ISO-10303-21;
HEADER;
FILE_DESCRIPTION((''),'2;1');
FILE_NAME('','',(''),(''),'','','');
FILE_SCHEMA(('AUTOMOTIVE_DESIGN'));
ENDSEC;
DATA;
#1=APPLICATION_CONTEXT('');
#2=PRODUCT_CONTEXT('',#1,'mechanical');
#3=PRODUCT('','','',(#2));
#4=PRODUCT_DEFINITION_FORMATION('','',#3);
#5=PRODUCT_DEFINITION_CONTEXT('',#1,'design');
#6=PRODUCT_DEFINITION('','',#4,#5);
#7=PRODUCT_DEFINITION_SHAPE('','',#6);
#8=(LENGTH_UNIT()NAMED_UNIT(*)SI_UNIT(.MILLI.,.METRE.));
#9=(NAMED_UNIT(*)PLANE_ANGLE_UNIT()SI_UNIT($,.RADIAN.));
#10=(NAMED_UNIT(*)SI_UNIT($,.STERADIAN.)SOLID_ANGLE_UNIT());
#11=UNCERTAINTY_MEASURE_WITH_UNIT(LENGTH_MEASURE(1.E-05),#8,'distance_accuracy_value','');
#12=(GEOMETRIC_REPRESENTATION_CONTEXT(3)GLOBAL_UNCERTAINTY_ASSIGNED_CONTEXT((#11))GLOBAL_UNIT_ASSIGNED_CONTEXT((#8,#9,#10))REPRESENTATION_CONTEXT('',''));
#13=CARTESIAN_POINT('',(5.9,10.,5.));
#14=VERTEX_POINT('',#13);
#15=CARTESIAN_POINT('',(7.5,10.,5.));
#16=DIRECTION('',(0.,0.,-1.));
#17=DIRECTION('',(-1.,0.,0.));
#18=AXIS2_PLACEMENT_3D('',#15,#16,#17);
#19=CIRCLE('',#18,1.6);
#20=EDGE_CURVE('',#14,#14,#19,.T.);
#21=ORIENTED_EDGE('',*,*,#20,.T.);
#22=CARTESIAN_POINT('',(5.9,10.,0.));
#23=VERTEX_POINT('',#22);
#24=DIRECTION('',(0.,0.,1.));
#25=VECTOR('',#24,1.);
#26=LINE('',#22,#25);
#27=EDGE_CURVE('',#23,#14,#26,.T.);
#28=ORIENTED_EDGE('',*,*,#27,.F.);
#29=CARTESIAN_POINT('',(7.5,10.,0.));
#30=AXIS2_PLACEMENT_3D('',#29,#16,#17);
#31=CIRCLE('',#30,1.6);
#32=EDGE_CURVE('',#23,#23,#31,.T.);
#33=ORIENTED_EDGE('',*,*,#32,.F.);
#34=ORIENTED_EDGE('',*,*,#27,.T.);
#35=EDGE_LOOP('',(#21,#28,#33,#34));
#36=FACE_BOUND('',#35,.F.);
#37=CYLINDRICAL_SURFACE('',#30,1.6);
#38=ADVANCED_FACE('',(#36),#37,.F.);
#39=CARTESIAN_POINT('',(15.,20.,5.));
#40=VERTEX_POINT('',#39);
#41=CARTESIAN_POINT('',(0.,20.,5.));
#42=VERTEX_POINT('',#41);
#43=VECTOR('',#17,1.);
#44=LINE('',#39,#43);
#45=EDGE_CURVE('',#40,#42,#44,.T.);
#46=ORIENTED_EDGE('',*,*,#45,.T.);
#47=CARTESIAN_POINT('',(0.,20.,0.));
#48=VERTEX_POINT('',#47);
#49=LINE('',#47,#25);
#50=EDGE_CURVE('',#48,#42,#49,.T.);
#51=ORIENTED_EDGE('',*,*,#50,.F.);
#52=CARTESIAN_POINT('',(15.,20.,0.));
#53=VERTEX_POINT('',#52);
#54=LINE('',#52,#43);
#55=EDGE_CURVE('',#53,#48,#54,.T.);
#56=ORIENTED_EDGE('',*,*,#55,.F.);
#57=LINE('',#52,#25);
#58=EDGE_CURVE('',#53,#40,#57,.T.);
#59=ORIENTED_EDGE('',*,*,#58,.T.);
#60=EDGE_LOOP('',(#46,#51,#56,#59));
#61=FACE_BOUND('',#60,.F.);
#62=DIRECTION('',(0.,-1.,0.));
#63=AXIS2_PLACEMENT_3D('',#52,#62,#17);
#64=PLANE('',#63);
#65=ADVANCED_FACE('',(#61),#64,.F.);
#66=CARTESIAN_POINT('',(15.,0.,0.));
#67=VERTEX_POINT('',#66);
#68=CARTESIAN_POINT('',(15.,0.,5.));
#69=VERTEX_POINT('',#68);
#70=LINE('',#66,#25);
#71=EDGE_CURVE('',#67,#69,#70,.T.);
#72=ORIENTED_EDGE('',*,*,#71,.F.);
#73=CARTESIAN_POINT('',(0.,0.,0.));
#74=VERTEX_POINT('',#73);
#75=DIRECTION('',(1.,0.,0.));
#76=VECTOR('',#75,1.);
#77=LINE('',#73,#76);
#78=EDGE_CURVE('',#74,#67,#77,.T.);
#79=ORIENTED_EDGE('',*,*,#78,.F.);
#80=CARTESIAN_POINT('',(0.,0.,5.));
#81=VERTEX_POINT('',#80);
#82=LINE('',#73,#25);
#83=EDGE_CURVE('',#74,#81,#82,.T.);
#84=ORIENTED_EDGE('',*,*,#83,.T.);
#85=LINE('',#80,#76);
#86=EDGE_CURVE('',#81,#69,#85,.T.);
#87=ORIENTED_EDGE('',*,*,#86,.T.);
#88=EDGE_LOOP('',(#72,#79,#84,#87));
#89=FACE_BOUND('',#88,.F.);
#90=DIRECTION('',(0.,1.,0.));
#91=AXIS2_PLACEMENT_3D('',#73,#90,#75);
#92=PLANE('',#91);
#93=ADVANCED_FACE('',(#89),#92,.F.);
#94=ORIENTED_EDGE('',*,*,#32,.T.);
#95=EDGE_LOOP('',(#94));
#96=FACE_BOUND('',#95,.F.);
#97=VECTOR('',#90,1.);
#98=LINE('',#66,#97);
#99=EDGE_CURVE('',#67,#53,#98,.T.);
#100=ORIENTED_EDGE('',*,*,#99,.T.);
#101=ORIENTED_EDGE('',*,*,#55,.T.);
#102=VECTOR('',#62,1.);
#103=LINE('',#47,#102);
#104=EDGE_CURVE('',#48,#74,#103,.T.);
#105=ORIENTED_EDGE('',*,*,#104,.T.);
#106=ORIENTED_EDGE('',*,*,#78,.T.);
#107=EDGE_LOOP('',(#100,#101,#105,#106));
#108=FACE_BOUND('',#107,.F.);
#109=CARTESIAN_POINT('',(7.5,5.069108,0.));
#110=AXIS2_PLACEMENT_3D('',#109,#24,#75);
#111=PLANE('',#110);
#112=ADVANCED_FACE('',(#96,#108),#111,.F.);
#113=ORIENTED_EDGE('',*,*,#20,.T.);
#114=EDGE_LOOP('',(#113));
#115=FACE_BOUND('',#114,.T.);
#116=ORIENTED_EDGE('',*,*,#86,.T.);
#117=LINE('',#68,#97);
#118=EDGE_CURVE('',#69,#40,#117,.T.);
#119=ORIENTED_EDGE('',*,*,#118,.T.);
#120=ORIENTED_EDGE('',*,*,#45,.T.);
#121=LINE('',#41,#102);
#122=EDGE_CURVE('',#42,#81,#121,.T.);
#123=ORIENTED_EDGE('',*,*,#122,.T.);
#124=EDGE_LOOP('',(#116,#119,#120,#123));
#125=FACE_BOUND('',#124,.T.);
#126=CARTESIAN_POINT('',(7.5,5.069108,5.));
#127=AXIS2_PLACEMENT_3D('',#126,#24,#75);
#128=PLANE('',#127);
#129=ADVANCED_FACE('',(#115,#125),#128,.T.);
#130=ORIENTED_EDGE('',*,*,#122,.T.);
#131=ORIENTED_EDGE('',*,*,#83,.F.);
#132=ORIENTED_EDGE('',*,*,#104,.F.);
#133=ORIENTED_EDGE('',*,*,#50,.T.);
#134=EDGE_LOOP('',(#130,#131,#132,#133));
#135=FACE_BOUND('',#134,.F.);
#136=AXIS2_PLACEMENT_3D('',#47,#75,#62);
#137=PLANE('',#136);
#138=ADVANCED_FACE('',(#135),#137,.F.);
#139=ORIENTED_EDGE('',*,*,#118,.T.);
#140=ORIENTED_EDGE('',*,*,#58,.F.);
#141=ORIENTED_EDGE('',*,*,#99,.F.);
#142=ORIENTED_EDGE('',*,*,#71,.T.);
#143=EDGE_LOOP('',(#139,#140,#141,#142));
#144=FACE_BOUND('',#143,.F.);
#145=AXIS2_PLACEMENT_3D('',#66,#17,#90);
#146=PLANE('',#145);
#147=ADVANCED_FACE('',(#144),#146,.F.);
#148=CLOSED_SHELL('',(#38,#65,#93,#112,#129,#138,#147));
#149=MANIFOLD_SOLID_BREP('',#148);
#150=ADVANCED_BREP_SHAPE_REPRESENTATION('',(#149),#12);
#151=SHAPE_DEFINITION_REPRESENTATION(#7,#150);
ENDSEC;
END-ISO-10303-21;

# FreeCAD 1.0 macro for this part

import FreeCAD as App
import Part
import Sketcher

V = App.Vector


def add_polygon(sketch, points):
    """Adds a closed chain of lines whose ends are joined by coincident constraints."""
    first, n = sketch.GeometryCount, len(points)
    for a, b in zip(points, points[1:] + points[:1]):
        sketch.addGeometry(Part.LineSegment(App.Vector(*a, 0), App.Vector(*b, 0)), False)
    for i in range(n):
        sketch.addConstraint(Sketcher.Constraint("Coincident", first + i, 2, first + (i + 1) % n, 1))

doc = App.newDocument("Part")
body = doc.addObject("PartDesign::Body", "Body")

sketch1 = body.newObject("Sketcher::SketchObject", "Sketch")
sketch1.AttachmentSupport = (doc.getObject("XY_Plane"), [""])
sketch1.MapMode = "FlatFace"
add_polygon(sketch1, [(0, 0), (15, 0), (15, 20), (0, 20)])
sketch1.addGeometry(Part.Circle(V(7.5, 10, 0), V(0, 0, 1), 1.6), False)
sketch1.addConstraint(Sketcher.Constraint("Horizontal", 0))
sketch1.addConstraint(Sketcher.Constraint("Vertical", 1))
sketch1.addConstraint(Sketcher.Constraint("Horizontal", 2))
sketch1.addConstraint(Sketcher.Constraint("Vertical", 3))
sketch1.addConstraint(Sketcher.Constraint("Coincident", 3, 2, -1, 1))
sketch1.addConstraint(Sketcher.Constraint("Diameter", 4, 3.2))
sketch1.addConstraint(Sketcher.Constraint("DistanceX", 0, 1, 0, 2, 15.0))
sketch1.addConstraint(Sketcher.Constraint("DistanceY", 1, 1, 1, 2, 20.0))
sketch1.addConstraint(Sketcher.Constraint("DistanceY", -1, 1, 4, 3, 10.0))
sketch1.addConstraint(Sketcher.Constraint("DistanceX", -1, 1, 4, 3, 7.5))
pad1 = body.newObject("PartDesign::Pad", "Pad")
pad1.Profile = sketch1
pad1.Length = 5

doc.recompute()
